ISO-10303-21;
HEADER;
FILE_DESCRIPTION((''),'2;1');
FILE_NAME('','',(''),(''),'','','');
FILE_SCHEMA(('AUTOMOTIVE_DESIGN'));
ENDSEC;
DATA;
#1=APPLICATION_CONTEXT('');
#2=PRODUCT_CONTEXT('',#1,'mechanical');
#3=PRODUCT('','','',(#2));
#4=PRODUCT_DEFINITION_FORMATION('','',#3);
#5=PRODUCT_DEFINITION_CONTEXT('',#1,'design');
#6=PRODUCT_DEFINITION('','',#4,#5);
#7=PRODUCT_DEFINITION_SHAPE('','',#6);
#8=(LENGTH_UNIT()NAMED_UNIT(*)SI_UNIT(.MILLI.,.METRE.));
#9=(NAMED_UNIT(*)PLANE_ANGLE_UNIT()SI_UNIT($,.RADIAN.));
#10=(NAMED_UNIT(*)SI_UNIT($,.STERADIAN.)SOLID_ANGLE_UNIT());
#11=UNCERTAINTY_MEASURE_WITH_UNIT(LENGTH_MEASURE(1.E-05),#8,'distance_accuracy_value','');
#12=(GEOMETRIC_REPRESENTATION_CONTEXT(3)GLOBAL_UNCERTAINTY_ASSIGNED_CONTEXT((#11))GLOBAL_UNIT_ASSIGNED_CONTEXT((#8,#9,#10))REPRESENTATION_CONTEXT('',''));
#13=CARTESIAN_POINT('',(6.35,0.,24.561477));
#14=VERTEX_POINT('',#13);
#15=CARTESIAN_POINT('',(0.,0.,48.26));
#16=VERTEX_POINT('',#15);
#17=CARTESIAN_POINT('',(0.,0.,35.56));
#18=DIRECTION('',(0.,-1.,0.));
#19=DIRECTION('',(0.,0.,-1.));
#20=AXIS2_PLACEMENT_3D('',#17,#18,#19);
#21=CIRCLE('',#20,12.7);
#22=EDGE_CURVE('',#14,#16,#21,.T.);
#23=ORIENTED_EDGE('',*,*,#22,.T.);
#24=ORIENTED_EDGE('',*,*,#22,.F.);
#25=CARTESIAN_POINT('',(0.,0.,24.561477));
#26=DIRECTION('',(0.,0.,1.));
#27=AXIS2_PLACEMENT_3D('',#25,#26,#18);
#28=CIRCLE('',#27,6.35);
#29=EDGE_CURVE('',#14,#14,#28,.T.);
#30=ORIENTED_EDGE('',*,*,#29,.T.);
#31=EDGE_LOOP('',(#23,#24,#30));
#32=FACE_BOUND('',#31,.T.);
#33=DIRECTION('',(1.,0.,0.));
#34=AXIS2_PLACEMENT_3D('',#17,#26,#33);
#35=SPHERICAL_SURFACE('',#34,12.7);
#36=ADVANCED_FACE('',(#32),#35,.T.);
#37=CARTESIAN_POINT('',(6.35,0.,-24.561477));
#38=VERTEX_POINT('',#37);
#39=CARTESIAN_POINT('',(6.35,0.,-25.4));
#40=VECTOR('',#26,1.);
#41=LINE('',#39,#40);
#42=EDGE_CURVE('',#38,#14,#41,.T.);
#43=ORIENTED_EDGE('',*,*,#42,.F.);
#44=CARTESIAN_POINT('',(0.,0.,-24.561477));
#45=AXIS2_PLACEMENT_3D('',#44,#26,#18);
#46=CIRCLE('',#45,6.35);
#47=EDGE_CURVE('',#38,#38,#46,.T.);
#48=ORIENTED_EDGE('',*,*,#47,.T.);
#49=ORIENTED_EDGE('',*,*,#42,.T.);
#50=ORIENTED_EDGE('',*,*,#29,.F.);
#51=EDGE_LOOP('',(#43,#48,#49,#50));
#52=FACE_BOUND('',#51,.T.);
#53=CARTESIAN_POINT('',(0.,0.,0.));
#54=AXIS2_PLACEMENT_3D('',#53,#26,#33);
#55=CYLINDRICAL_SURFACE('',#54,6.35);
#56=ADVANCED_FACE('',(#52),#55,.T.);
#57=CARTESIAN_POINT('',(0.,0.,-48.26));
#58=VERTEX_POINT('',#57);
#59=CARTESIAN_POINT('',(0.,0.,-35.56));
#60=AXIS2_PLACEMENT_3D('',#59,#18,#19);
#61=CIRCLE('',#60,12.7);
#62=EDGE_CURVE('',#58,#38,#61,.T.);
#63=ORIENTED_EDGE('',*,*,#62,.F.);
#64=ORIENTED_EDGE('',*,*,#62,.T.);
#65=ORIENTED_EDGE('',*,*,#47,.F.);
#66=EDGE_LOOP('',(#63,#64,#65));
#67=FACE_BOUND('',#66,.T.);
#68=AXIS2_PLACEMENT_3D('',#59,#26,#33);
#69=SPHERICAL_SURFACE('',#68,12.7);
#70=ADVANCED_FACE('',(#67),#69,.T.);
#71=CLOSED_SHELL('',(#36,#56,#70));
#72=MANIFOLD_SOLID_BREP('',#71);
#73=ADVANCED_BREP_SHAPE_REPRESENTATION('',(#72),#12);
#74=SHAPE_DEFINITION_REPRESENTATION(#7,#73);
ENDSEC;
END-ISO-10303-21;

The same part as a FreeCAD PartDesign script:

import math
import FreeCAD as App
import Part
import Sketcher
from FreeCAD import Vector
Q = App.Units.Quantity

doc = App.newDocument("Part")
body = doc.addObject("PartDesign::Body", "Body")

# Sketch on XY plane
sketch1 = body.newObject("Sketcher::SketchObject", "Sketch")
sketch1.AttachmentSupport = (doc.getObject("XY_Plane"), [""])
sketch1.MapMode = "FlatFace"
sketch1.addGeometry(Part.Circle(Vector(0, 0, 0), Vector(0, 0, 1), 6), False)
sketch1.addConstraint([
    Sketcher.Constraint("Coincident", 0, 3, -1, 1),
    Sketcher.Constraint("Diameter", 0, Q("0.5 in")),
])
pad1 = body.newObject("PartDesign::Pad", "Pad")
pad1.Profile = sketch1
pad1.Length = Q("2 in")
pad1.Midplane = True

# Sketch on XZ plane
sketch2 = body.newObject("Sketcher::SketchObject", "Sketch001")
sketch2.AttachmentSupport = (doc.getObject("XZ_Plane"), [""])
sketch2.MapMode = "FlatFace"
sketch2.addGeometry([
    Part.LineSegment(Vector(0, 48, 0), Vector(0, 23, 0)),
    Part.ArcOfCircle(Part.Circle(Vector(0, 36, 0), Vector(0, 0, 1), 13), math.radians(-90), math.radians(90)),
    Part.ArcOfCircle(Part.Circle(Vector(0, -36, 0), Vector(0, 0, 1), 13), math.radians(-90), math.radians(90)),
    Part.LineSegment(Vector(0, -23, 0), Vector(0, -48, 0)),
], False)
sketch2.addConstraint([
    Sketcher.Constraint("Coincident", 0, 1, 1, 2),
    Sketcher.Constraint("Coincident", 1, 1, 0, 2),
    Sketcher.Constraint("Coincident", 2, 1, 3, 2),
    Sketcher.Constraint("Coincident", 3, 1, 2, 2),
    Sketcher.Constraint("Vertical", 0),
    Sketcher.Constraint("Vertical", 3),
    Sketcher.Constraint("Equal", 1, 2),
    Sketcher.Constraint("Symmetric", 1, 3, 2, 3, -1, 1),
    Sketcher.Constraint("PointOnObject", 1, 3, -2),
    Sketcher.Constraint("PointOnObject", 0, 1, -2),
    Sketcher.Constraint("PointOnObject", 2, 1, -2),
    Sketcher.Constraint("Radius", 1, Q("0.5 in")),
    Sketcher.Constraint("DistanceY", -1, 1, 1, 3, Q("1.4 in")),
])
revolution = body.newObject("PartDesign::Revolution", "Revolution")
revolution.Profile = sketch2
revolution.ReferenceAxis = (sketch2, ["V_Axis"])
revolution.Angle = 360

doc.recompute()
